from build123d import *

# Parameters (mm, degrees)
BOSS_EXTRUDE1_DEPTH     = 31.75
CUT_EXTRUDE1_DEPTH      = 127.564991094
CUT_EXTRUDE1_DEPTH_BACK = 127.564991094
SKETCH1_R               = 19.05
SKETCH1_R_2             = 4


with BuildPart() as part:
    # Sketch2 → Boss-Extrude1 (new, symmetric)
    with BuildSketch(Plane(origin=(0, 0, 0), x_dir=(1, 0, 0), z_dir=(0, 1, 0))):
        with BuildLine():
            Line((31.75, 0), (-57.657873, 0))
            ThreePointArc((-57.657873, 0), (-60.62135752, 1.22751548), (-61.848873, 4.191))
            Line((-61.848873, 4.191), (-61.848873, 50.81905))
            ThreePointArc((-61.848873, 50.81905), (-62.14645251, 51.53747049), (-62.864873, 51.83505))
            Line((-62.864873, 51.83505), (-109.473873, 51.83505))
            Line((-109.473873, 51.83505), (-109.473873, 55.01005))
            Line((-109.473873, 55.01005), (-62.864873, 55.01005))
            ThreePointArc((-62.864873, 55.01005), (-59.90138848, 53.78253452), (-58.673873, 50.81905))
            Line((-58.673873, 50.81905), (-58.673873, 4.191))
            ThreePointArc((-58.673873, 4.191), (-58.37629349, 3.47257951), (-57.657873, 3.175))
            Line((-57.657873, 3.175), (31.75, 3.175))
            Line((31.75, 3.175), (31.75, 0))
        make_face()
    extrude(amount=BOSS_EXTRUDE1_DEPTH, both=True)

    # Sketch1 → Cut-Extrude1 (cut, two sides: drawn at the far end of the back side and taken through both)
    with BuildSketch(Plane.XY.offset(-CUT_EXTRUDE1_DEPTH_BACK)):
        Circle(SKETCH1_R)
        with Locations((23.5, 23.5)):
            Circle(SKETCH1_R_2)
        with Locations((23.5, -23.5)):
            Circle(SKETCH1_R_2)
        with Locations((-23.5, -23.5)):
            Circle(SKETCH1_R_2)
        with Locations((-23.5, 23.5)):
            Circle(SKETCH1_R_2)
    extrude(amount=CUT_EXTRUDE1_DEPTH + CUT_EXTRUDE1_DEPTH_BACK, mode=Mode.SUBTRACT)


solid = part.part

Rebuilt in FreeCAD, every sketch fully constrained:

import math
import FreeCAD as App
import Part
import Sketcher

V = App.Vector
Q = App.Units.Quantity

doc = App.newDocument("Part")
body = doc.addObject("PartDesign::Body", "Body")

# Sketch on XZ plane
sketch1 = doc.addObject("Sketcher::SketchObject", "Sketch")
body.addObject(sketch1)
sketch1.AttachmentSupport = (doc.XZ_Plane, [""])
sketch1.MapMode = "FlatFace"
sketch1.addGeometry(Part.LineSegment(V(-57.657873, 0, 0), V(31.75, 0, 0)), False)
sketch1.addGeometry(Part.LineSegment(V(31.75, 0, 0), V(31.75, -3.175, 0)), False)
sketch1.addGeometry(Part.LineSegment(V(31.75, -3.175, 0), V(-57.657873, -3.175, 0)), False)
sketch1.addGeometry(Part.ArcOfCircle(Part.Circle(V(-57.657873, -4.191, 0), V(0, 0, 1), 1.016), math.radians(90), math.radians(180)), False)
sketch1.addGeometry(Part.LineSegment(V(-58.673873, -4.191, 0), V(-58.673873, -50.81905, 0)), False)
sketch1.addGeometry(Part.ArcOfCircle(Part.Circle(V(-62.864873, -50.81905, 0), V(0, 0, 1), 4.191), math.radians(-90), math.radians(0)), False)
sketch1.addGeometry(Part.LineSegment(V(-62.864873, -55.01005, 0), V(-109.473873, -55.01005, 0)), False)
sketch1.addGeometry(Part.LineSegment(V(-109.473873, -55.01005, 0), V(-109.473873, -51.83505, 0)), False)
sketch1.addGeometry(Part.LineSegment(V(-109.473873, -51.83505, 0), V(-62.864873, -51.83505, 0)), False)
sketch1.addGeometry(Part.ArcOfCircle(Part.Circle(V(-62.864873, -50.81905, 0), V(0, 0, 1), 1.016), math.radians(-90), math.radians(0)), False)
sketch1.addGeometry(Part.LineSegment(V(-61.848873, -50.81905, 0), V(-61.848873, -4.191, 0)), False)
sketch1.addGeometry(Part.ArcOfCircle(Part.Circle(V(-57.657873, -4.191, 0), V(0, 0, 1), 4.191), math.radians(90), math.radians(180)), False)
sketch1.addConstraint(Sketcher.Constraint("Coincident", 0, 2, 1, 1))
sketch1.addConstraint(Sketcher.Constraint("Coincident", 1, 2, 2, 1))
sketch1.addConstraint(Sketcher.Constraint("Tangent", 2, 2, 3, 1))
sketch1.addConstraint(Sketcher.Constraint("Tangent", 3, 2, 4, 1))
sketch1.addConstraint(Sketcher.Constraint("Tangent", 4, 2, 5, 2))
sketch1.addConstraint(Sketcher.Constraint("Tangent", 5, 1, 6, 1))
sketch1.addConstraint(Sketcher.Constraint("Coincident", 6, 2, 7, 1))
sketch1.addConstraint(Sketcher.Constraint("Coincident", 7, 2, 8, 1))
sketch1.addConstraint(Sketcher.Constraint("Tangent", 8, 2, 9, 1))
sketch1.addConstraint(Sketcher.Constraint("Tangent", 9, 2, 10, 1))
sketch1.addConstraint(Sketcher.Constraint("Tangent", 10, 2, 11, 2))
sketch1.addConstraint(Sketcher.Constraint("Tangent", 11, 1, 0, 1))
sketch1.addConstraint(Sketcher.Constraint("Horizontal", 0))
sketch1.addConstraint(Sketcher.Constraint("Vertical", 1))
sketch1.addConstraint(Sketcher.Constraint("Horizontal", 2))
sketch1.addConstraint(Sketcher.Constraint("Vertical", 4))
sketch1.addConstraint(Sketcher.Constraint("Horizontal", 6))
sketch1.addConstraint(Sketcher.Constraint("Vertical", 7))
sketch1.addConstraint(Sketcher.Constraint("Horizontal", 8))
sketch1.addConstraint(Sketcher.Constraint("Vertical", 10))
sketch1.addConstraint(Sketcher.Constraint("Coincident", 9, 3, 5, 3))
sketch1.addConstraint(Sketcher.Constraint("Coincident", 11, 3, 3, 3))
sketch1.addConstraint(Sketcher.Constraint("Equal", 3, 9))
sketch1.addConstraint(Sketcher.Constraint("PointOnObject", 0, 2, -1))
sketch1.addConstraint(Sketcher.Constraint("Radius", 3, Q("0.04 in")))
sketch1.addConstraint(Sketcher.Constraint("Radius", 5, Q("0.165 in")))
sketch1.addConstraint(Sketcher.Constraint("DistanceX", 6, 2, 4, 2, Q("2 in")))
sketch1.addConstraint(Sketcher.Constraint("DistanceX", -1, 1, 0, 2, Q("1.25 in")))
sketch1.addConstraint(Sketcher.Constraint("DistanceY", 4, 2, 4, 1, Q("46.62805 mm")))
sketch1.addConstraint(Sketcher.Constraint("DistanceX", 0, 1, 0, 2, Q("89.407873 mm")))
pad1 = doc.addObject("PartDesign::Pad", "Pad")
body.addObject(pad1)
pad1.Profile = sketch1
pad1.Length = Q("2.5 in")
pad1.Midplane = True

# Sketch on XY plane
sketch2 = doc.addObject("Sketcher::SketchObject", "Sketch001")
body.addObject(sketch2)
sketch2.AttachmentSupport = (doc.XY_Plane, [""])
sketch2.MapMode = "FlatFace"
sketch2.addGeometry(Part.Circle(V(0, 0, 0), V(0, 0, 1), 19.05), False)
sketch2.addGeometry(Part.Circle(V(23.5, 23.5, 0), V(0, 0, 1), 4), False)
sketch2.addGeometry(Part.Circle(V(23.5, -23.5, 0), V(0, 0, 1), 4), False)
sketch2.addGeometry(Part.Circle(V(-23.5, -23.5, 0), V(0, 0, 1), 4), False)
sketch2.addGeometry(Part.Circle(V(-23.5, 23.5, 0), V(0, 0, 1), 4), False)
sketch2.addConstraint(Sketcher.Constraint("Coincident", 0, 3, -1, 1))
sketch2.addConstraint(Sketcher.Constraint("Equal", 1, 2))
sketch2.addConstraint(Sketcher.Constraint("Equal", 2, 3))
sketch2.addConstraint(Sketcher.Constraint("Equal", 3, 4))
sketch2.addConstraint(Sketcher.Constraint("Symmetric", 1, 3, 3, 3, -1, 1))
sketch2.addConstraint(Sketcher.Constraint("Symmetric", 2, 3, 4, 3, -1, 1))
sketch2.addConstraint(Sketcher.Constraint("Symmetric", 2, 3, 3, 3, -2))
sketch2.addConstraint(Sketcher.Constraint("Diameter", 0, Q("1.5 in")))
sketch2.addConstraint(Sketcher.Constraint("Diameter", 1, Q("8 mm")))
sketch2.addConstraint(Sketcher.Constraint("DistanceX", -1, 1, 1, 3, Q("23.5 mm")))
sketch2.addConstraint(Sketcher.Constraint("DistanceY", -1, 1, 1, 3, Q("23.5 mm")))
pocket1 = doc.addObject("PartDesign::Pocket", "Pocket")
body.addObject(pocket1)
pocket1.Profile = sketch2
pocket1.Type = "ThroughAll"
pocket1.Midplane = True

doc.recompute()
